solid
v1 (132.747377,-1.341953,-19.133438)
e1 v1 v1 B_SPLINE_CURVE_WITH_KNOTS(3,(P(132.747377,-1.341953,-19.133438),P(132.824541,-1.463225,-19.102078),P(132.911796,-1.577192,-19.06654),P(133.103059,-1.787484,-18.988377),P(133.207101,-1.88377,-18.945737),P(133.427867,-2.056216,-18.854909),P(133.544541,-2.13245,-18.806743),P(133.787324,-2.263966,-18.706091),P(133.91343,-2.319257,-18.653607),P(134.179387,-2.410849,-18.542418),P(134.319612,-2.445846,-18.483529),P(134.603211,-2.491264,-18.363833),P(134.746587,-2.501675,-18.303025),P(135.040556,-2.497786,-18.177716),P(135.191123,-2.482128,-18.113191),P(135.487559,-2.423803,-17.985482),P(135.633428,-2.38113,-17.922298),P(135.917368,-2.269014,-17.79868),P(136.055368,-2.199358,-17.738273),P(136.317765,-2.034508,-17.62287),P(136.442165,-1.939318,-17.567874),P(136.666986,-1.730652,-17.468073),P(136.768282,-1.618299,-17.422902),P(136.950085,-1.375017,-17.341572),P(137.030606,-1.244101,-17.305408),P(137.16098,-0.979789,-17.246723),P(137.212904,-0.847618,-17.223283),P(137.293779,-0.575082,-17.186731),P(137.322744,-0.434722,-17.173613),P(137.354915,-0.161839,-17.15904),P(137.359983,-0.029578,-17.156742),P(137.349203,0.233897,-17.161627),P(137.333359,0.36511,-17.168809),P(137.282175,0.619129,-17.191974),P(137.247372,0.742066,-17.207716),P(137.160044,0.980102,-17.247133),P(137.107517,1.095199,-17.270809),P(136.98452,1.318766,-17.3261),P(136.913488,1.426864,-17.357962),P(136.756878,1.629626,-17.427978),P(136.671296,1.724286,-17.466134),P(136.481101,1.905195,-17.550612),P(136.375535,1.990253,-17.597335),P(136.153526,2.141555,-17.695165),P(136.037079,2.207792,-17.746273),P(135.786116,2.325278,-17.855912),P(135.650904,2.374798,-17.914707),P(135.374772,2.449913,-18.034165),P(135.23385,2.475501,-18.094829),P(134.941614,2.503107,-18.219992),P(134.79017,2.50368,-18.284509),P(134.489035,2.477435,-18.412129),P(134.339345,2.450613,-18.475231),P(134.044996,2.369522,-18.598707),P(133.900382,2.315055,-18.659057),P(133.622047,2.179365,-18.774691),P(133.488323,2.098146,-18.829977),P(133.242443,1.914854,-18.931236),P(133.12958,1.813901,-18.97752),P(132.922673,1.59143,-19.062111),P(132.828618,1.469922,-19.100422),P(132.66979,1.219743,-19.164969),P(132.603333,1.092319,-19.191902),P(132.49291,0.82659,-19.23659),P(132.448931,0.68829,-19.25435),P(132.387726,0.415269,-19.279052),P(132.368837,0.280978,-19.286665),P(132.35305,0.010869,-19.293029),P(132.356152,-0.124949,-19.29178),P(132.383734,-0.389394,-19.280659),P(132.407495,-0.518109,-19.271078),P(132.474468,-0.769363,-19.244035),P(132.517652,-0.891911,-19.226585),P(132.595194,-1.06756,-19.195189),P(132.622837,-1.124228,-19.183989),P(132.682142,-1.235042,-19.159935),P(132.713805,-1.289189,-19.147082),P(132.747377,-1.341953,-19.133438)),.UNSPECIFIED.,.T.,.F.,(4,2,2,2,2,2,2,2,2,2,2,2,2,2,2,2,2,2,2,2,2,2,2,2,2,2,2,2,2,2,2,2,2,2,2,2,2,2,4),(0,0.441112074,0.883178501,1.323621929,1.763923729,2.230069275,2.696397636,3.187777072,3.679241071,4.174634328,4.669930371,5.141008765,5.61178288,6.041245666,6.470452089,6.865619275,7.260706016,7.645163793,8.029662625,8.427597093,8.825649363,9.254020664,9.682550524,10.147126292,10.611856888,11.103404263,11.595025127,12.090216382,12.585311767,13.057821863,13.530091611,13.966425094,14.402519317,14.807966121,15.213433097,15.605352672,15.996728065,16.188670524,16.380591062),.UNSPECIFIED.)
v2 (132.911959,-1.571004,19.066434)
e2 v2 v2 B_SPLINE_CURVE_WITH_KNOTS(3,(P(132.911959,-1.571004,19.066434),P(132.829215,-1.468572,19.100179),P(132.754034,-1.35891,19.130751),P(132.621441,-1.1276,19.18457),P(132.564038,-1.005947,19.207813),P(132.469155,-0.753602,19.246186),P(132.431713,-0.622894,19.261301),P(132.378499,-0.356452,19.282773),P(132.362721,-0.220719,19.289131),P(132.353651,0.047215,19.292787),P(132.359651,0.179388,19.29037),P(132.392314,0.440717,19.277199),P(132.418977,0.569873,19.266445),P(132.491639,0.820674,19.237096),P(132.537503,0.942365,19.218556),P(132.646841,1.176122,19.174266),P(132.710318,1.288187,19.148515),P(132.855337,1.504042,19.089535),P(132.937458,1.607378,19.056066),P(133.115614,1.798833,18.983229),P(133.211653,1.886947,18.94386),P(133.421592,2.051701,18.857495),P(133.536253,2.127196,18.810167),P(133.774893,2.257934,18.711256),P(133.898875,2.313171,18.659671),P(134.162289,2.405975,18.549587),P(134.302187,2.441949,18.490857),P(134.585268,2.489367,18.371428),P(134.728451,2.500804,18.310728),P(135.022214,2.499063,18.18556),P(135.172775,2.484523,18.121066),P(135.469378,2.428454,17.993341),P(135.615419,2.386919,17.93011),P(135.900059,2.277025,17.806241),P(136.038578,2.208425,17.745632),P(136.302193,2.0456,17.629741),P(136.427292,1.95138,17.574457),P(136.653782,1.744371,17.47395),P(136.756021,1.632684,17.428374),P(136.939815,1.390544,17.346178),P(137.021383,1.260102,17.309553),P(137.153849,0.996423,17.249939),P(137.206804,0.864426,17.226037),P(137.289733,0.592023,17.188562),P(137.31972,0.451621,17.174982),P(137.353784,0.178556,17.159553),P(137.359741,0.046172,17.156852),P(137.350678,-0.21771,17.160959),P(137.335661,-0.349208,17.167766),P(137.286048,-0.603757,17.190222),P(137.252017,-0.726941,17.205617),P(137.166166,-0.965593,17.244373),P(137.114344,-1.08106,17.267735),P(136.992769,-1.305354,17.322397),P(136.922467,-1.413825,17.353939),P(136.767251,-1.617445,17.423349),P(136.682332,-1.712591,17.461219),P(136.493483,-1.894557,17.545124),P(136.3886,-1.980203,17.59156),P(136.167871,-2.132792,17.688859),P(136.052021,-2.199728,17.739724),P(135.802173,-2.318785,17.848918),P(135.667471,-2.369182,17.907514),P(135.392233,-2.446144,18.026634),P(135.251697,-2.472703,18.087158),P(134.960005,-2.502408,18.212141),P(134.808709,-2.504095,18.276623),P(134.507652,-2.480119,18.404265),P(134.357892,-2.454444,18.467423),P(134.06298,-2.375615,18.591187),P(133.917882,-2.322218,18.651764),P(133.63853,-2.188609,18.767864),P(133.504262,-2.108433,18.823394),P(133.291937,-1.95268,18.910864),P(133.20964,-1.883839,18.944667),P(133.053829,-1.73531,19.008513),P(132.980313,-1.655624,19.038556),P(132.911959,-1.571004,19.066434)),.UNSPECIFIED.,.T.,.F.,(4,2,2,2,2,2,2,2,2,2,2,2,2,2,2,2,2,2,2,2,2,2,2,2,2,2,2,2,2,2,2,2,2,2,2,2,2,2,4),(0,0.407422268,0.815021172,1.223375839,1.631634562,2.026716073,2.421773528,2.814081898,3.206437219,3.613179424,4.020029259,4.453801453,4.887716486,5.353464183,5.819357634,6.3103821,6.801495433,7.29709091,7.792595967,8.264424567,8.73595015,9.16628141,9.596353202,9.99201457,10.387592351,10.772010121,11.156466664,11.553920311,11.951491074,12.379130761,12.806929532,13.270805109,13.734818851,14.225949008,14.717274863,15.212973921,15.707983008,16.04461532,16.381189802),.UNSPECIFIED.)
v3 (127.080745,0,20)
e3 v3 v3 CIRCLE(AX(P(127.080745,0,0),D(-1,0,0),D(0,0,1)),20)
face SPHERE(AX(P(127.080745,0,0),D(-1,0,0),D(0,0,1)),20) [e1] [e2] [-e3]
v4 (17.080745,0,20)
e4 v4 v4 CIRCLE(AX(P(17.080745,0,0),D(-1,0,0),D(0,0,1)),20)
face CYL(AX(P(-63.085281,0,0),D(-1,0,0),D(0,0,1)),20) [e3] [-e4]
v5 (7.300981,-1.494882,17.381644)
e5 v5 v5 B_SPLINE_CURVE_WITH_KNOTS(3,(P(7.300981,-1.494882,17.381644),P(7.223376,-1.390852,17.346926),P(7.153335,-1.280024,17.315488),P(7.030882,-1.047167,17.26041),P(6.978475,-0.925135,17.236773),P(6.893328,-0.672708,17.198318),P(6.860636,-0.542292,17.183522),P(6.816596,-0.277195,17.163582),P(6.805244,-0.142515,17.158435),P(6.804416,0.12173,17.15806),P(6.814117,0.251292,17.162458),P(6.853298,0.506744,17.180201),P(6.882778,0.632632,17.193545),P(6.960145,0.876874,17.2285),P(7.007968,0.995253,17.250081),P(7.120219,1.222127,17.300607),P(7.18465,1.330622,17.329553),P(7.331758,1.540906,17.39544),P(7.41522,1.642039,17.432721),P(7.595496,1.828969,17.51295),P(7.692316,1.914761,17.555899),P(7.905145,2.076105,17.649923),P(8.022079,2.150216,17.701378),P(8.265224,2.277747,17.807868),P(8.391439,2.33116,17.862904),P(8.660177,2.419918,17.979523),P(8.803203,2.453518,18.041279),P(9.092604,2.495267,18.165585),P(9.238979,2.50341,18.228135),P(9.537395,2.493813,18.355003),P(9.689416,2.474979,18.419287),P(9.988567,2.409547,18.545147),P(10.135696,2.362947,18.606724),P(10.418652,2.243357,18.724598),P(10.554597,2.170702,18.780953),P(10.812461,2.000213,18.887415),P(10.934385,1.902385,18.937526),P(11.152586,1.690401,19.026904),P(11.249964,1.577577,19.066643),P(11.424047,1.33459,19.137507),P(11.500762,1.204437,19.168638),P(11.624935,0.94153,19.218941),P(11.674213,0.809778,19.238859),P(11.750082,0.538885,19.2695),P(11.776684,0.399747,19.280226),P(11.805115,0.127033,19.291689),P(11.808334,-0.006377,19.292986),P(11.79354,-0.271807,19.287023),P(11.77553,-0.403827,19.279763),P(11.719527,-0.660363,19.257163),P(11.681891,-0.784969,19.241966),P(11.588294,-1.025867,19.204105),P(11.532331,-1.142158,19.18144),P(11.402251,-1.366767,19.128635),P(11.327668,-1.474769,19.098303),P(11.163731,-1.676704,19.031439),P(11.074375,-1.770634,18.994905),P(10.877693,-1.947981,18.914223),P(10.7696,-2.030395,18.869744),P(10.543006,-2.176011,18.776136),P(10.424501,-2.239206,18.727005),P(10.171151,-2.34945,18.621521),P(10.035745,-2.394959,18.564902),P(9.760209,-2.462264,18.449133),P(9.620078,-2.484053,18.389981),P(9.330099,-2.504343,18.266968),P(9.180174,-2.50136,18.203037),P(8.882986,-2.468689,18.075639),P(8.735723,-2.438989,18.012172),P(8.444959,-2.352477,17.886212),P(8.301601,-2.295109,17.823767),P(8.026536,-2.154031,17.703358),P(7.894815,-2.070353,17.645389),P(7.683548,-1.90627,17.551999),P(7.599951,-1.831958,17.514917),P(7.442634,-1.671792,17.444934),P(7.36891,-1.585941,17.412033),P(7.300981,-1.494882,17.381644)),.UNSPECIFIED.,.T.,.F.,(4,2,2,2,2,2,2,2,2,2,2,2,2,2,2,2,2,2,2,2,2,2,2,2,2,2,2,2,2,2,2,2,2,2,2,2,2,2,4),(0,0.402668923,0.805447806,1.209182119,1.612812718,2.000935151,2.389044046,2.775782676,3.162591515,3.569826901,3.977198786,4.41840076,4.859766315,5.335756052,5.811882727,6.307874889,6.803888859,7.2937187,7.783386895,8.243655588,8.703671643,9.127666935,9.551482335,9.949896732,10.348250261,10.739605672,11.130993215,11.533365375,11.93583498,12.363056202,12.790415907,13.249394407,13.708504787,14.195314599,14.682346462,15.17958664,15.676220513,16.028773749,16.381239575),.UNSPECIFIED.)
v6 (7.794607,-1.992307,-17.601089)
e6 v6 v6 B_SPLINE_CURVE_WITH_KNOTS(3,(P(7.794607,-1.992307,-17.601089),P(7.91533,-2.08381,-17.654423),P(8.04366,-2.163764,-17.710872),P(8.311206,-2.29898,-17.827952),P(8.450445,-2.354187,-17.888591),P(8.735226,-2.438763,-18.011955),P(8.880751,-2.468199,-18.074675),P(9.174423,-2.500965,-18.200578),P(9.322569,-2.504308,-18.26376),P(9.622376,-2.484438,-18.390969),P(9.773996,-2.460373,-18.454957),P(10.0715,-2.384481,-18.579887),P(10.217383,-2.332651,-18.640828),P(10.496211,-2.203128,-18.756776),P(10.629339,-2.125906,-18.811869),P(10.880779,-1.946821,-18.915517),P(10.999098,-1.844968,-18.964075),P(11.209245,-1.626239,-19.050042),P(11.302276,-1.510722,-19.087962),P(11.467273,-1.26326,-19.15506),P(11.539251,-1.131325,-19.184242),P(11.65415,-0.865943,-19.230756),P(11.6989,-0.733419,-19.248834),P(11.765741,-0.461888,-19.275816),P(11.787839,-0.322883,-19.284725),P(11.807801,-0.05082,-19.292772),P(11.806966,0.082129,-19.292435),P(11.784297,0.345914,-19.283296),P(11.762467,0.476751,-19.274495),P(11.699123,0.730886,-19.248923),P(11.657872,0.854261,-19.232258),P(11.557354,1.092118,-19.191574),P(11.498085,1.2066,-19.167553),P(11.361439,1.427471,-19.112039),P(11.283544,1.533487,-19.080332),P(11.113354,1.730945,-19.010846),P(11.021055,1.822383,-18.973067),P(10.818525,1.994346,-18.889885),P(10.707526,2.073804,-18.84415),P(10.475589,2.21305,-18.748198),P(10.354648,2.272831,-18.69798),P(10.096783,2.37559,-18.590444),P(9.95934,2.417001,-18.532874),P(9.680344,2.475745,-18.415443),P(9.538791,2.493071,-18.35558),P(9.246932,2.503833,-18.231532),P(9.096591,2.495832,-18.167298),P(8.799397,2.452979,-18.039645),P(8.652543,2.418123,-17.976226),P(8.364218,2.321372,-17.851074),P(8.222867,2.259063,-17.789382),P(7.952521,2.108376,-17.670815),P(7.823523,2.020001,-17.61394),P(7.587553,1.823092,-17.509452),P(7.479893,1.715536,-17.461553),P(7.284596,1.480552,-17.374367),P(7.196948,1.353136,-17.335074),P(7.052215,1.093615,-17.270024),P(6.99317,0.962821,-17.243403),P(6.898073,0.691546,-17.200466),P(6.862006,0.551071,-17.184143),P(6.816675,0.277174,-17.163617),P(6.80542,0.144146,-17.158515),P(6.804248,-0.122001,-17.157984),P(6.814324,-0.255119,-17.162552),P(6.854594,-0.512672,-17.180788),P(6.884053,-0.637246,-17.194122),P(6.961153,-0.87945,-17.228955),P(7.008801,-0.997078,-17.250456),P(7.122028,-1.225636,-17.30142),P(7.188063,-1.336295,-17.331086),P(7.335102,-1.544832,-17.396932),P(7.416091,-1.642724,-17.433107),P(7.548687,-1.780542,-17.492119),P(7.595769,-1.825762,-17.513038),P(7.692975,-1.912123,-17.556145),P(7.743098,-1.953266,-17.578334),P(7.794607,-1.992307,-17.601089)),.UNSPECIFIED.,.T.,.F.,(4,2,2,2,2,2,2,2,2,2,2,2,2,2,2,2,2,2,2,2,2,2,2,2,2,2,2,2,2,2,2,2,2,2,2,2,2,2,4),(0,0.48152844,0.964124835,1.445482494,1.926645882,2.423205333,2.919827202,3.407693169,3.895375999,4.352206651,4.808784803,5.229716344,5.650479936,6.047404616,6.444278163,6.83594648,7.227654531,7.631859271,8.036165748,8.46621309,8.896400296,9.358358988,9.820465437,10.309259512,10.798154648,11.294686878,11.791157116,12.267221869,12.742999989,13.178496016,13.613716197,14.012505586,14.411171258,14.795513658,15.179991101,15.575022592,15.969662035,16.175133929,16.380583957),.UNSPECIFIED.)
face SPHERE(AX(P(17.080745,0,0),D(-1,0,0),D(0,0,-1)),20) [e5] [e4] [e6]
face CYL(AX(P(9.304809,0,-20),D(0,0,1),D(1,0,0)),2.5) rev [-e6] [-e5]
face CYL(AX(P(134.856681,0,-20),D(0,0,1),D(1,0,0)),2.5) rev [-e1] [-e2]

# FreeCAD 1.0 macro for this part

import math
import FreeCAD as App
import Part
import Sketcher

V = App.Vector

doc = App.newDocument("Part")
body = doc.addObject("PartDesign::Body", "Body")

sketch1 = body.newObject("Sketcher::SketchObject", "Sketch")
sketch1.AttachmentSupport = (doc.getObject("XZ_Plane"), [""])
sketch1.MapMode = "FlatFace"
sketch1.addGeometry(Part.LineSegment(V(127, -20, 0), V(17, -20, 0)), False)
sketch1.addGeometry(Part.ArcOfCircle(Part.Circle(V(17, 0, 0), V(0, 0, 1), 20), math.radians(180), math.radians(270)), False)
sketch1.addGeometry(Part.LineSegment(V(-3, 0, 0), V(147, 0, 0)), False)
sketch1.addGeometry(Part.ArcOfCircle(Part.Circle(V(127, 0, 0), V(0, 0, 1), 20), math.radians(-90), math.radians(0)), False)
sketch1.addConstraint(Sketcher.Constraint("Tangent", 0, 2, 1, 2))
sketch1.addConstraint(Sketcher.Constraint("Coincident", 1, 1, 2, 1))
sketch1.addConstraint(Sketcher.Constraint("Coincident", 2, 2, 3, 2))
sketch1.addConstraint(Sketcher.Constraint("Tangent", 3, 1, 0, 1))
sketch1.addConstraint(Sketcher.Constraint("Horizontal", 0))
sketch1.addConstraint(Sketcher.Constraint("Horizontal", 2))
sketch1.addConstraint(Sketcher.Constraint("Equal", 1, 3))
sketch1.addConstraint(Sketcher.Constraint("PointOnObject", 1, 3, -1))
sketch1.addConstraint(Sketcher.Constraint("PointOnObject", 1, 1, -1))
sketch1.addConstraint(Sketcher.Constraint("Radius", 1, 20.0))
sketch1.addConstraint(Sketcher.Constraint("DistanceX", 0, 2, 0, 1, 110.0))
sketch1.addConstraint(Sketcher.Constraint("DistanceX", -1, 1, 1, 3, 17.080745))
revolution = body.newObject("PartDesign::Revolution", "Revolution")
revolution.Profile = sketch1
revolution.ReferenceAxis = (sketch1, ["H_Axis"])
revolution.Angle = 360

sketch2 = body.newObject("Sketcher::SketchObject", "Sketch001")
sketch2.AttachmentSupport = (doc.getObject("XY_Plane"), [""])
sketch2.MapMode = "FlatFace"
sketch2.addGeometry(Part.Circle(V(9.3, 0, 0), V(0, 0, 1), 2.5), False)
sketch2.addGeometry(Part.Circle(V(134.9, 0, 0), V(0, 0, 1), 2.5), False)
sketch2.addConstraint(Sketcher.Constraint("Equal", 0, 1))
sketch2.addConstraint(Sketcher.Constraint("PointOnObject", 0, 3, -1))
sketch2.addConstraint(Sketcher.Constraint("PointOnObject", 1, 3, -1))
sketch2.addConstraint(Sketcher.Constraint("Diameter", 0, 5.0))
sketch2.addConstraint(Sketcher.Constraint("DistanceX", -1, 1, 0, 3, 9.304809))
sketch2.addConstraint(Sketcher.Constraint("DistanceX", -1, 1, 1, 3, 134.856681))
pocket1 = body.newObject("PartDesign::Pocket", "Pocket")
pocket1.Profile = sketch2
pocket1.Type = "ThroughAll"
pocket1.Midplane = True

doc.recompute()
